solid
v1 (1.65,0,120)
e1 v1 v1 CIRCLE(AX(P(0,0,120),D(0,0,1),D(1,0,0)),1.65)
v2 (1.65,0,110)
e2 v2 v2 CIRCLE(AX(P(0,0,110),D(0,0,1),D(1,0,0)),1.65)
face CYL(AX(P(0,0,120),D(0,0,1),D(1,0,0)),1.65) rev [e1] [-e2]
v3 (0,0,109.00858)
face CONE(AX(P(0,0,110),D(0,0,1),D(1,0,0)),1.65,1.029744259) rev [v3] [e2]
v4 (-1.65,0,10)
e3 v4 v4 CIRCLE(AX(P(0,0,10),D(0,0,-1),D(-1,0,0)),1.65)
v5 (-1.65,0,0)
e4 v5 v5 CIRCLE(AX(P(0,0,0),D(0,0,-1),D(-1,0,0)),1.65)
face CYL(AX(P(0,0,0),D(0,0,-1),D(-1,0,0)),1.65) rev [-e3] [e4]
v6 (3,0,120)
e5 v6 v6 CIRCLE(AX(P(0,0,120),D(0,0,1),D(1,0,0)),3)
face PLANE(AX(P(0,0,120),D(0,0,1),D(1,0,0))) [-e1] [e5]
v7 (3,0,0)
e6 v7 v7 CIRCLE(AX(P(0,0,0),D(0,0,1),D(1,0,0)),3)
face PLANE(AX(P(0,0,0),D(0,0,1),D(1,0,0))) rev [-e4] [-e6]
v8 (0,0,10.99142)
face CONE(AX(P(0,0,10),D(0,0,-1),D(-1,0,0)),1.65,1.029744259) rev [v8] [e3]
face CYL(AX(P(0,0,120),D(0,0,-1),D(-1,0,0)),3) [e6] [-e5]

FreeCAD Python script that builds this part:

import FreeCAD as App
import Part
import Sketcher
from FreeCAD import Vector
Q = App.Units.Quantity

doc = App.newDocument("Part")
body = doc.addObject("PartDesign::Body", "Body")

sketch1 = body.newObject("Sketcher::SketchObject", "Sketch")
sketch1.AttachmentSupport = (doc.getObject("XY_Plane"), [""])
sketch1.MapMode = "FlatFace"
sketch1.addGeometry(Part.Circle(Vector(0, 0, 0), Vector(0, 0, 1), 3), False)
sketch1.addConstraint([
    Sketcher.Constraint("Coincident", 0, 3, -1, 1),
    Sketcher.Constraint("Diameter", 0, 6.0),
])
pad1 = body.newObject("PartDesign::Pad", "Pad")
pad1.Profile = sketch1
pad1.Length = 120

sketch2 = body.newObject("Sketcher::SketchObject", "Sketch001")
sketch2.AttachmentSupport = (doc.getObject("YZ_Plane"), [""])
sketch2.MapMode = "FlatFace"
sketch2.addGeometry([
    Part.LineSegment(Vector(0, 109, 0), Vector(0, 120, 0)),
    Part.LineSegment(Vector(0, 120, 0), Vector(-1.6, 120, 0)),
    Part.LineSegment(Vector(-1.6, 120, 0), Vector(-1.6, 110, 0)),
    Part.LineSegment(Vector(-1.6, 110, 0), Vector(0, 109, 0)),
], False)
sketch2.addConstraint([
    Sketcher.Constraint("Coincident", 0, 2, 1, 1),
    Sketcher.Constraint("Coincident", 1, 2, 2, 1),
    Sketcher.Constraint("Coincident", 2, 2, 3, 1),
    Sketcher.Constraint("Coincident", 3, 2, 0, 1),
    Sketcher.Constraint("Vertical", 0),
    Sketcher.Constraint("Horizontal", 1),
    Sketcher.Constraint("Vertical", 2),
    Sketcher.Constraint("PointOnObject", 0, 2, -2),
    Sketcher.Constraint("DistanceY", 2, 2, 2, 1, 10.0),
    Sketcher.Constraint("Angle", 3, Q("-31 deg")),
    Sketcher.Constraint("DistanceY", -1, 1, 0, 2, 120.0),
    Sketcher.Constraint("DistanceX", 1, 2, 1, 1, 1.65),
])
groove = body.newObject("PartDesign::Groove", "Groove")
groove.Profile = sketch2
groove.ReferenceAxis = (sketch2, ["V_Axis"])
groove.Angle = 360
doc.recompute()

datumplane = body.newObject("PartDesign::Plane", "DatumPlane")
datumplane.AttachmentSupport = (doc.getObject("XY_Plane"), [""])
datumplane.MapMode = "FlatFace"
datumplane.AttachmentOffset = App.Placement(Vector(0, 0, 60), App.Rotation())
mirrored = body.newObject("PartDesign::Mirrored", "Mirrored")
mirrored.Originals = [groove]
mirrored.MirrorPlane = (datumplane, [""])
body.Tip = mirrored

doc.recompute()
